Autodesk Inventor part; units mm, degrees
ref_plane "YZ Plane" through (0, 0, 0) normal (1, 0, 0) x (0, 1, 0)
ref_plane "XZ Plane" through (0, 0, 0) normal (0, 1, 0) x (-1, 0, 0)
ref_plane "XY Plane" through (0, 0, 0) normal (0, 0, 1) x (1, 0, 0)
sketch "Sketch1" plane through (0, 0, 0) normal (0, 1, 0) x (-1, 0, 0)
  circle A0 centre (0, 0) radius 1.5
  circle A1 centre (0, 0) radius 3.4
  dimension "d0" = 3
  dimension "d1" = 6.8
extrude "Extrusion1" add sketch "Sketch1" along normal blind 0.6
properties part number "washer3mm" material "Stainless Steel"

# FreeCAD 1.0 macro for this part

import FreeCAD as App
import Part
import Sketcher
from FreeCAD import Vector

doc = App.newDocument("Part")
body = doc.addObject("PartDesign::Body", "Body")

sketch1 = body.newObject("Sketcher::SketchObject", "Sketch")
sketch1.AttachmentSupport = (doc.getObject("XZ_Plane"), [""])
sketch1.MapMode = "FlatFace"
sketch1.addGeometry(Part.Circle(Vector(0, 0, 0), Vector(0, 0, 1), 3.4), False)
sketch1.addGeometry(Part.Circle(Vector(0, 0, 0), Vector(0, 0, 1), 1.5), False)
sketch1.addConstraint(Sketcher.Constraint("Coincident", 0, 3, -1, 1))
sketch1.addConstraint(Sketcher.Constraint("Coincident", 1, 3, -1, 1))
sketch1.addConstraint(Sketcher.Constraint("Diameter", 1, 3.0))
sketch1.addConstraint(Sketcher.Constraint("Diameter", 0, 6.8))
pad1 = body.newObject("PartDesign::Pad", "Pad")
pad1.Profile = sketch1
pad1.Length = 0.6
pad1.Reversed = True

doc.recompute()
